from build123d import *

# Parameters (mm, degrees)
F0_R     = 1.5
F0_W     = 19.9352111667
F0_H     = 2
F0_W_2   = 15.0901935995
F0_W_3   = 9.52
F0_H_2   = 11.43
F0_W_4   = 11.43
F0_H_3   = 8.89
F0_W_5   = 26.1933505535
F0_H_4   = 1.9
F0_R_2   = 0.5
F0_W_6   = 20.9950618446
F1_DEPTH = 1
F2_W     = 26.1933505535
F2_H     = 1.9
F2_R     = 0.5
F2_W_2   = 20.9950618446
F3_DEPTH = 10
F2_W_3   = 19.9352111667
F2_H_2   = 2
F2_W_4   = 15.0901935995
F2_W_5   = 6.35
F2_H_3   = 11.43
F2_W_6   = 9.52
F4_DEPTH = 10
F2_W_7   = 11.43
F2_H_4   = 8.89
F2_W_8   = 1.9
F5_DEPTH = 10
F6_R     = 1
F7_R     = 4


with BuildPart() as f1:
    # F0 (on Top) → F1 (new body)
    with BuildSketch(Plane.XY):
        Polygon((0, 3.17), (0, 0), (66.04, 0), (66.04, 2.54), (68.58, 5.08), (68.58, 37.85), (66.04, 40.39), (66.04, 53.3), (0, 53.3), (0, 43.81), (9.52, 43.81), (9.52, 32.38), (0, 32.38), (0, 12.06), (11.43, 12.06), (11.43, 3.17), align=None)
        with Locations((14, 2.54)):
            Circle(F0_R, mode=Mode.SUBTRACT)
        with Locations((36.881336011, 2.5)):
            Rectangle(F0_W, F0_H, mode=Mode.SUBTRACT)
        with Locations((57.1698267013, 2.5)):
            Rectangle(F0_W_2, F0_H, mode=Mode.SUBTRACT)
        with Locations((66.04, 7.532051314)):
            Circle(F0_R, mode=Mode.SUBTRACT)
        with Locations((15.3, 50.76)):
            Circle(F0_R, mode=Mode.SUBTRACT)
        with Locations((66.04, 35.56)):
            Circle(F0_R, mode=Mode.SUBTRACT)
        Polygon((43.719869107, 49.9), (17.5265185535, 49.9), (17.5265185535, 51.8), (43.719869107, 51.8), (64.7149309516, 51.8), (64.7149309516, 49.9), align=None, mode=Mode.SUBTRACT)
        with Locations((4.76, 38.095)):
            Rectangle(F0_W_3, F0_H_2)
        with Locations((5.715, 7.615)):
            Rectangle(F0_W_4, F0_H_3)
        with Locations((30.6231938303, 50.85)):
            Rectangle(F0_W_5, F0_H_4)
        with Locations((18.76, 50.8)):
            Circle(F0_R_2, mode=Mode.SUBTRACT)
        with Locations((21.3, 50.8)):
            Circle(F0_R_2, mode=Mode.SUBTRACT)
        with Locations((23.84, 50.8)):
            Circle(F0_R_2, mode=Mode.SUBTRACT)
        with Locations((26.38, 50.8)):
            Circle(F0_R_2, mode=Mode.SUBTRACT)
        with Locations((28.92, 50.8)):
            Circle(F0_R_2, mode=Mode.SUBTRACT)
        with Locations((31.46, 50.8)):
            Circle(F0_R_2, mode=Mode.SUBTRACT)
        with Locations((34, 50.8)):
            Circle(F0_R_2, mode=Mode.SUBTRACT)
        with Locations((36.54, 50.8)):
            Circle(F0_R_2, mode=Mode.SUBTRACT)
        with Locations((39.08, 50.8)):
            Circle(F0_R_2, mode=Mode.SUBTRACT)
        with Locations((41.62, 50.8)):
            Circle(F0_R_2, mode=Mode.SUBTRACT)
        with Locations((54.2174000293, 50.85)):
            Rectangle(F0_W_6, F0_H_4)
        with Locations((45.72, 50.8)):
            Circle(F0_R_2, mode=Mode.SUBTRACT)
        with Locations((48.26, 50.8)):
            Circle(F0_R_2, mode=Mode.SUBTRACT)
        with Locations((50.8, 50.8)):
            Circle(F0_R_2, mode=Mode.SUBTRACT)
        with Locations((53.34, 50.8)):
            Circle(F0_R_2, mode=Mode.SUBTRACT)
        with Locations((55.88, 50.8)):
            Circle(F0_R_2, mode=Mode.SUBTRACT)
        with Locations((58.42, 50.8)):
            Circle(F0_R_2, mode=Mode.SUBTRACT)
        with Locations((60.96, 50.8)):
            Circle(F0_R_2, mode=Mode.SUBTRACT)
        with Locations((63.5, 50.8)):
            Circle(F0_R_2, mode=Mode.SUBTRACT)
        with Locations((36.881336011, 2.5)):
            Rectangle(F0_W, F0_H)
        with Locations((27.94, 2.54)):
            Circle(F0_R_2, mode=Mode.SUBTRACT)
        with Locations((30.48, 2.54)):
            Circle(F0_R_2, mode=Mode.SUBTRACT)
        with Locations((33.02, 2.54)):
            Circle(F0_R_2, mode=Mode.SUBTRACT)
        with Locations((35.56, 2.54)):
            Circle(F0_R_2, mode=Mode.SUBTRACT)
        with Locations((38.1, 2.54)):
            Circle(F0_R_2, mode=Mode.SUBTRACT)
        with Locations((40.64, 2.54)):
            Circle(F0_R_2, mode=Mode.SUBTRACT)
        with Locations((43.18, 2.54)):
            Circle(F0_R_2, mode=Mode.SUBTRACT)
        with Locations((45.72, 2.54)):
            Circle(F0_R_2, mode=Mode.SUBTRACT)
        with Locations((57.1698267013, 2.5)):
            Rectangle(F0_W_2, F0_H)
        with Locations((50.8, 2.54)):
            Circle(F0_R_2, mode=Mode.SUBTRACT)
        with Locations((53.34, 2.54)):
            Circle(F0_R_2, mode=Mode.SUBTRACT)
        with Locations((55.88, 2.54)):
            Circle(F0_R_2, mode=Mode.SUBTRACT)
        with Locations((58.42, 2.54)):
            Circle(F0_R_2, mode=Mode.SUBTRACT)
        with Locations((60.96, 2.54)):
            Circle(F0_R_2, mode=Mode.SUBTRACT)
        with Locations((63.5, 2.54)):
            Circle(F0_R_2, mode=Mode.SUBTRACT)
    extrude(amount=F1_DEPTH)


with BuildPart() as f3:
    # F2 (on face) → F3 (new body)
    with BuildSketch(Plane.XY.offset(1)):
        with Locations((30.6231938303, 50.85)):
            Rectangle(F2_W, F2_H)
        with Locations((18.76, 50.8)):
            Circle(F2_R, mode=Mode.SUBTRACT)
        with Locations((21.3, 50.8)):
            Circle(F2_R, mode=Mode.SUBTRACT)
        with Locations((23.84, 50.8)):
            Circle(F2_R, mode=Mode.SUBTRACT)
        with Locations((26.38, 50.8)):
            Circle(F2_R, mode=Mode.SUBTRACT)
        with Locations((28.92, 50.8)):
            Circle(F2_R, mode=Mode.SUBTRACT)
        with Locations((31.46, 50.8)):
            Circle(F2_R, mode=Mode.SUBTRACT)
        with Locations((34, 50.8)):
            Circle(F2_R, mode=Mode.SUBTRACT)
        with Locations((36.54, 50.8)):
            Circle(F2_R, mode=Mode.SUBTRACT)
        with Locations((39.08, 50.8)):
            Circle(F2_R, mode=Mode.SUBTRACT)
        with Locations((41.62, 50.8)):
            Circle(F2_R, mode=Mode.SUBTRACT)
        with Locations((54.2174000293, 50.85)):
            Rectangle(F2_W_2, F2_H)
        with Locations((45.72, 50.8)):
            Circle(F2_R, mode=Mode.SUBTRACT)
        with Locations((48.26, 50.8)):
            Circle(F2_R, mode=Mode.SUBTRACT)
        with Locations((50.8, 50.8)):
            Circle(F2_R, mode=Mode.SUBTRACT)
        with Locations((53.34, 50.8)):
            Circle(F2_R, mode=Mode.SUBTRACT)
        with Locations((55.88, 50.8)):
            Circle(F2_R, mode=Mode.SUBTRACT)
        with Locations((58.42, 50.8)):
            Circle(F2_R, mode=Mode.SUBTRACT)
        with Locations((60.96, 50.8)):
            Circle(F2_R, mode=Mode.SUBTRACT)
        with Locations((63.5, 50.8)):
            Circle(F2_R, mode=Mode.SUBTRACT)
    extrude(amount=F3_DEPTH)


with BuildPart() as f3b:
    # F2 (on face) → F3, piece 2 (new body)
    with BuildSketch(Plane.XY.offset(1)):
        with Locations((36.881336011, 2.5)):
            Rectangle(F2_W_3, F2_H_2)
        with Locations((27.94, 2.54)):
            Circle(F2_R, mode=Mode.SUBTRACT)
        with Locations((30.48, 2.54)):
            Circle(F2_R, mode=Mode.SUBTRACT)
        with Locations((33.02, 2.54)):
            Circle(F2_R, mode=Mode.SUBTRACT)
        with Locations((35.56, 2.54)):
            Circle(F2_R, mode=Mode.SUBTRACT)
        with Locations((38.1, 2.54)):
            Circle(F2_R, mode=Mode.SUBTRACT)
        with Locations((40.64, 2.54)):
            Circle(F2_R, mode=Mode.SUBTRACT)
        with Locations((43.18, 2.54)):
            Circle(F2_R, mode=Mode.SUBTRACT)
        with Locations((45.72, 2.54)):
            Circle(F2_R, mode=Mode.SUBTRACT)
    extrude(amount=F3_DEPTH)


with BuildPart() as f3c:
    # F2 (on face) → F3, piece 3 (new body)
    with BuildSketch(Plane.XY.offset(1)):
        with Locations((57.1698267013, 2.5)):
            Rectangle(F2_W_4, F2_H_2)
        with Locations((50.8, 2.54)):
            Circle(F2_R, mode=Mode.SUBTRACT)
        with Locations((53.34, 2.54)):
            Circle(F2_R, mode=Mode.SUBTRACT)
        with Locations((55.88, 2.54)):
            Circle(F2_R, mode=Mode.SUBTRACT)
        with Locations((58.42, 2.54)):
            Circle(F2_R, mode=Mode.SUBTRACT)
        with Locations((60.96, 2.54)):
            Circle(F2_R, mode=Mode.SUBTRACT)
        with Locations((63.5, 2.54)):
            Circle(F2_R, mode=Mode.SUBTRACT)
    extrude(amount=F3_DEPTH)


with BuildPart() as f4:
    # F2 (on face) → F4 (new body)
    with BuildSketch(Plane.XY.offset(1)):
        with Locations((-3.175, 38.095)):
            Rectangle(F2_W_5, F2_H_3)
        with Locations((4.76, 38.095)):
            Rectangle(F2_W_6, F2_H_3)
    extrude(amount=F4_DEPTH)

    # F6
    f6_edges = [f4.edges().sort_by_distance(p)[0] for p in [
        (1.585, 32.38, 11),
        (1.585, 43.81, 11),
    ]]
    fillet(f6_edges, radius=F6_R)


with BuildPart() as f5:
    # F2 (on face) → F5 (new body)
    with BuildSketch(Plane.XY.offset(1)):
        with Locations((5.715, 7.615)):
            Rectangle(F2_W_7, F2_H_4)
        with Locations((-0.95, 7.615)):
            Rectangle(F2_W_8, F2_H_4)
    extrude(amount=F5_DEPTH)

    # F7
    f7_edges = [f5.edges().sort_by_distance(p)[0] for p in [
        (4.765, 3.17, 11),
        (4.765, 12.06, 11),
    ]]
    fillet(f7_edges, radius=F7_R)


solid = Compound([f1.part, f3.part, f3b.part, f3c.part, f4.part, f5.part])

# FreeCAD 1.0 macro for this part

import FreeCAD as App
import Part
import Sketcher

V = App.Vector


def edges_at(feature, points):
    """Names of the edges that pass closest to the given points."""
    edges = feature.Shape.Edges
    near = lambda p: min(range(len(edges)), key=lambda i: edges[i].distToShape(Part.Vertex(*p))[0])
    return sorted({f"Edge{near(p) + 1}" for p in points})

doc = App.newDocument("Part")
body = doc.addObject("PartDesign::Body", "Body")

sketch1 = body.newObject("Sketcher::SketchObject", "Sketch")
sketch1.AttachmentSupport = (doc.getObject("XY_Plane"), [""])
sketch1.MapMode = "FlatFace"
sketch1.addGeometry([
    Part.LineSegment(V(0, 0, 0), V(66.04, 0, 0)),
    Part.LineSegment(V(66.04, 0, 0), V(66.04, 2.54, 0)),
    Part.LineSegment(V(66.04, 2.54, 0), V(68.58, 5.08, 0)),
    Part.LineSegment(V(68.58, 5.08, 0), V(68.58, 37.85, 0)),
    Part.LineSegment(V(68.58, 37.85, 0), V(66.04, 40.39, 0)),
    Part.LineSegment(V(66.04, 40.39, 0), V(66.04, 53.3, 0)),
    Part.LineSegment(V(66.04, 53.3, 0), V(0, 53.3, 0)),
    Part.LineSegment(V(0, 53.3, 0), V(0, 0, 0)),
    Part.Circle(V(14, 2.54, 0), V(0, 0, 1), 1.5),
    Part.Circle(V(27.94, 2.54, 0), V(0, 0, 1), 0.5),
    Part.Circle(V(30.48, 2.54, 0), V(0, 0, 1), 0.5),
    Part.Circle(V(33.02, 2.54, 0), V(0, 0, 1), 0.5),
    Part.Circle(V(35.56, 2.54, 0), V(0, 0, 1), 0.5),
    Part.Circle(V(38.1, 2.54, 0), V(0, 0, 1), 0.5),
    Part.Circle(V(40.64, 2.54, 0), V(0, 0, 1), 0.5),
    Part.Circle(V(43.18, 2.54, 0), V(0, 0, 1), 0.5),
    Part.Circle(V(45.72, 2.54, 0), V(0, 0, 1), 0.5),
    Part.Circle(V(50.8, 2.54, 0), V(0, 0, 1), 0.5),
    Part.Circle(V(53.34, 2.54, 0), V(0, 0, 1), 0.5),
    Part.Circle(V(55.88, 2.54, 0), V(0, 0, 1), 0.5),
    Part.Circle(V(58.42, 2.54, 0), V(0, 0, 1), 0.5),
    Part.Circle(V(60.96, 2.54, 0), V(0, 0, 1), 0.5),
    Part.Circle(V(63.5, 2.54, 0), V(0, 0, 1), 0.5),
    Part.Circle(V(66.04, 7.532051, 0), V(0, 0, 1), 1.5),
    Part.Circle(V(15.3, 50.76, 0), V(0, 0, 1), 1.5),
    Part.Circle(V(18.76, 50.8, 0), V(0, 0, 1), 0.5),
    Part.Circle(V(21.3, 50.8, 0), V(0, 0, 1), 0.5),
    Part.Circle(V(23.84, 50.8, 0), V(0, 0, 1), 0.5),
    Part.Circle(V(26.38, 50.8, 0), V(0, 0, 1), 0.5),
    Part.Circle(V(28.92, 50.8, 0), V(0, 0, 1), 0.5),
    Part.Circle(V(31.46, 50.8, 0), V(0, 0, 1), 0.5),
    Part.Circle(V(34, 50.8, 0), V(0, 0, 1), 0.5),
    Part.Circle(V(36.54, 50.8, 0), V(0, 0, 1), 0.5),
    Part.Circle(V(39.08, 50.8, 0), V(0, 0, 1), 0.5),
    Part.Circle(V(66.04, 35.56, 0), V(0, 0, 1), 1.5),
    Part.Circle(V(41.62, 50.8, 0), V(0, 0, 1), 0.5),
    Part.Circle(V(45.72, 50.8, 0), V(0, 0, 1), 0.5),
    Part.Circle(V(48.26, 50.8, 0), V(0, 0, 1), 0.5),
    Part.Circle(V(50.8, 50.8, 0), V(0, 0, 1), 0.5),
    Part.Circle(V(53.34, 50.8, 0), V(0, 0, 1), 0.5),
    Part.Circle(V(55.88, 50.8, 0), V(0, 0, 1), 0.5),
    Part.Circle(V(58.42, 50.8, 0), V(0, 0, 1), 0.5),
    Part.Circle(V(60.96, 50.8, 0), V(0, 0, 1), 0.5),
    Part.Circle(V(63.5, 50.8, 0), V(0, 0, 1), 0.5),
], False)
sketch1.addConstraint([
    Sketcher.Constraint("Coincident", 0, 2, 1, 1),
    Sketcher.Constraint("Coincident", 1, 2, 2, 1),
    Sketcher.Constraint("Coincident", 2, 2, 3, 1),
    Sketcher.Constraint("Coincident", 3, 2, 4, 1),
    Sketcher.Constraint("Coincident", 4, 2, 5, 1),
    Sketcher.Constraint("Coincident", 5, 2, 6, 1),
    Sketcher.Constraint("Coincident", 6, 2, 7, 1),
    Sketcher.Constraint("Coincident", 7, 2, 0, 1),
    Sketcher.Constraint("Horizontal", 0),
    Sketcher.Constraint("Vertical", 1),
    Sketcher.Constraint("Vertical", 3),
    Sketcher.Constraint("Vertical", 5),
    Sketcher.Constraint("Horizontal", 6),
    Sketcher.Constraint("Vertical", 7),
    Sketcher.Constraint("Coincident", 7, 2, -1, 1),
    Sketcher.Constraint("Equal", 9, 10),
    Sketcher.Constraint("Equal", 10, 11),
    Sketcher.Constraint("Equal", 11, 12),
    Sketcher.Constraint("Equal", 12, 13),
    Sketcher.Constraint("Equal", 13, 14),
    Sketcher.Constraint("Equal", 14, 15),
    Sketcher.Constraint("Equal", 15, 16),
    Sketcher.Constraint("Equal", 16, 17),
    Sketcher.Constraint("Equal", 17, 18),
    Sketcher.Constraint("Equal", 18, 19),
    Sketcher.Constraint("Equal", 19, 20),
    Sketcher.Constraint("Equal", 20, 21),
    Sketcher.Constraint("Equal", 21, 22),
    Sketcher.Constraint("Equal", 8, 23),
    Sketcher.Constraint("Equal", 23, 24),
    Sketcher.Constraint("Equal", 22, 25),
    Sketcher.Constraint("Equal", 25, 26),
    Sketcher.Constraint("Equal", 26, 27),
    Sketcher.Constraint("Equal", 27, 28),
    Sketcher.Constraint("Equal", 28, 29),
    Sketcher.Constraint("Equal", 29, 30),
    Sketcher.Constraint("Equal", 30, 31),
    Sketcher.Constraint("Equal", 31, 32),
    Sketcher.Constraint("Equal", 32, 33),
    Sketcher.Constraint("Equal", 24, 34),
    Sketcher.Constraint("Equal", 33, 35),
    Sketcher.Constraint("Equal", 35, 36),
    Sketcher.Constraint("Equal", 36, 37),
    Sketcher.Constraint("Equal", 37, 38),
    Sketcher.Constraint("Equal", 38, 39),
    Sketcher.Constraint("Equal", 39, 40),
    Sketcher.Constraint("Equal", 40, 41),
    Sketcher.Constraint("Equal", 41, 42),
    Sketcher.Constraint("Equal", 42, 43),
    Sketcher.Constraint("Perpendicular", 2, 4),
    Sketcher.Constraint("Horizontal", 8, 3, 9, 3),
    Sketcher.Constraint("Horizontal", 9, 3, 10, 3),
    Sketcher.Constraint("Horizontal", 10, 3, 11, 3),
    Sketcher.Constraint("Horizontal", 11, 3, 12, 3),
    Sketcher.Constraint("Horizontal", 12, 3, 13, 3),
    Sketcher.Constraint("Horizontal", 13, 3, 14, 3),
    Sketcher.Constraint("Horizontal", 14, 3, 15, 3),
    Sketcher.Constraint("Horizontal", 15, 3, 16, 3),
    Sketcher.Constraint("Horizontal", 16, 3, 17, 3),
    Sketcher.Constraint("Horizontal", 17, 3, 18, 3),
    Sketcher.Constraint("Horizontal", 18, 3, 19, 3),
    Sketcher.Constraint("Horizontal", 19, 3, 20, 3),
    Sketcher.Constraint("Horizontal", 20, 3, 21, 3),
    Sketcher.Constraint("Horizontal", 21, 3, 22, 3),
    Sketcher.Constraint("Horizontal", 25, 3, 26, 3),
    Sketcher.Constraint("Horizontal", 26, 3, 27, 3),
    Sketcher.Constraint("Horizontal", 27, 3, 28, 3),
    Sketcher.Constraint("Horizontal", 28, 3, 29, 3),
    Sketcher.Constraint("Horizontal", 29, 3, 30, 3),
    Sketcher.Constraint("Horizontal", 30, 3, 31, 3),
    Sketcher.Constraint("Horizontal", 31, 3, 32, 3),
    Sketcher.Constraint("Horizontal", 32, 3, 33, 3),
    Sketcher.Constraint("Horizontal", 33, 3, 35, 3),
    Sketcher.Constraint("Horizontal", 35, 3, 36, 3),
    Sketcher.Constraint("Horizontal", 36, 3, 37, 3),
    Sketcher.Constraint("Horizontal", 37, 3, 38, 3),
    Sketcher.Constraint("Horizontal", 38, 3, 39, 3),
    Sketcher.Constraint("Horizontal", 39, 3, 40, 3),
    Sketcher.Constraint("Horizontal", 40, 3, 41, 3),
    Sketcher.Constraint("Horizontal", 41, 3, 42, 3),
    Sketcher.Constraint("Horizontal", 42, 3, 43, 3),
    Sketcher.Constraint("Horizontal", 22, 3, 1, 2),
    Sketcher.Constraint("Vertical", 23, 3, 34, 3),
    Sketcher.Constraint("Vertical", 16, 3, 36, 3),
    Sketcher.Constraint("Vertical", 17, 3, 38, 3),
    Sketcher.Constraint("Vertical", 18, 3, 39, 3),
    Sketcher.Constraint("Vertical", 19, 3, 40, 3),
    Sketcher.Constraint("Vertical", 20, 3, 41, 3),
    Sketcher.Constraint("Vertical", 21, 3, 42, 3),
    Sketcher.Constraint("Vertical", 22, 3, 43, 3),
    Sketcher.Constraint("Vertical", 34, 3, 0, 2),
    Sketcher.Constraint("Vertical", 1, 2, 4, 2),
    Sketcher.Constraint("Equal", 2, 4),
    Sketcher.Constraint("Diameter", 8, 3.0),
    Sketcher.Constraint("Diameter", 9, 1.0),
    Sketcher.Constraint("DistanceY", 7, 2, 7, 1, 53.3),
    Sketcher.Constraint("DistanceX", -1, 1, 8, 3, 14.0),
    Sketcher.Constraint("DistanceX", -1, 1, 31, 3, 34.0),
    Sketcher.Constraint("DistanceX", 24, 3, 26, 3, 6.0),
    Sketcher.Constraint("DistanceX", 0, 1, 0, 2, 66.04),
    Sketcher.Constraint("DistanceY", 1, 1, 1, 2, 2.54),
    Sketcher.Constraint("DistanceY", 3, 1, 3, 2, 32.77),
    Sketcher.Constraint("DistanceY", 5, 1, 5, 2, 12.91),
    Sketcher.Constraint("DistanceX", -1, 1, 13, 3, 38.1),
    Sketcher.Constraint("DistanceX", -1, 1, 17, 3, 50.8),
    Sketcher.Constraint("DistanceX", -1, 1, 22, 3, 63.5),
    Sketcher.Constraint("DistanceX", -1, 1, 24, 3, 15.3),
    Sketcher.Constraint("DistanceY", -1, 1, 25, 3, 50.8),
    Sketcher.Constraint("DistanceX", 9, 3, 14, 3, 12.7),
    Sketcher.Constraint("DistanceX", 10, 3, 15, 3, 12.7),
    Sketcher.Constraint("DistanceX", 11, 3, 16, 3, 12.7),
    Sketcher.Constraint("DistanceX", 14, 3, 18, 3, 12.7),
    Sketcher.Constraint("DistanceX", 15, 3, 19, 3, 12.7),
    Sketcher.Constraint("DistanceX", 16, 3, 20, 3, 12.7),
    Sketcher.Constraint("DistanceX", 18, 3, 23, 3, 12.7),
    Sketcher.Constraint("DistanceX", 27, 3, 9, 3, 4.1),
    Sketcher.Constraint("DistanceX", 25, 3, 30, 3, 12.7),
    Sketcher.Constraint("DistanceX", 27, 3, 32, 3, 12.7),
    Sketcher.Constraint("DistanceX", 28, 3, 33, 3, 12.7),
    Sketcher.Constraint("DistanceX", 29, 3, 35, 3, 12.7),
    Sketcher.Constraint("DistanceX", 35, 3, 36, 3, 4.1),
    Sketcher.Constraint("DistanceX", 37, 3, 42, 3, 12.7),
    Sketcher.Constraint("DistanceX", 40, 3, 3, 2, 12.7),
    Sketcher.Constraint("DistanceX", -1, 1, 11, 3, 33.02),
    Sketcher.Constraint("DistanceX", -1, 1, 12, 3, 35.56),
    Sketcher.Constraint("DistanceX", -1, 1, 21, 3, 60.96),
    Sketcher.Constraint("DistanceY", -1, 1, 24, 3, 50.76),
    Sketcher.Constraint("DistanceX", -1, 1, 25, 3, 18.76),
    Sketcher.Constraint("DistanceX", -1, 1, 28, 3, 26.38),
    Sketcher.Constraint("DistanceY", -1, 1, 34, 3, 35.56),
    Sketcher.Constraint("DistanceY", -1, 1, 23, 3, 7.532051),
])
pad1 = body.newObject("PartDesign::Pad", "Pad")
pad1.Profile = sketch1
pad1.Length = 1
body2 = doc.addObject("PartDesign::Body", "Body001")

sketch2 = body2.newObject("Sketcher::SketchObject", "Sketch001")
sketch2.AttachmentSupport = (doc.getObject("XY_Plane001"), [""])
sketch2.MapMode = "FlatFace"
sketch2.AttachmentOffset = App.Placement(V(0, 0, 1), App.Rotation())
sketch2.addGeometry([
    Part.LineSegment(V(17.526519, 51.8, 0), V(17.526519, 49.9, 0)),
    Part.LineSegment(V(17.526519, 49.9, 0), V(64.714931, 49.9, 0)),
    Part.LineSegment(V(64.714931, 49.9, 0), V(64.714931, 51.8, 0)),
    Part.LineSegment(V(64.714931, 51.8, 0), V(17.526519, 51.8, 0)),
    Part.Circle(V(18.76, 50.8, 0), V(0, 0, 1), 0.5),
    Part.Circle(V(21.3, 50.8, 0), V(0, 0, 1), 0.5),
    Part.Circle(V(23.84, 50.8, 0), V(0, 0, 1), 0.5),
    Part.Circle(V(26.38, 50.8, 0), V(0, 0, 1), 0.5),
    Part.Circle(V(28.92, 50.8, 0), V(0, 0, 1), 0.5),
    Part.Circle(V(31.46, 50.8, 0), V(0, 0, 1), 0.5),
    Part.Circle(V(34, 50.8, 0), V(0, 0, 1), 0.5),
    Part.Circle(V(36.54, 50.8, 0), V(0, 0, 1), 0.5),
    Part.Circle(V(39.08, 50.8, 0), V(0, 0, 1), 0.5),
    Part.Circle(V(41.62, 50.8, 0), V(0, 0, 1), 0.5),
    Part.Circle(V(45.72, 50.8, 0), V(0, 0, 1), 0.5),
    Part.Circle(V(48.26, 50.8, 0), V(0, 0, 1), 0.5),
    Part.Circle(V(50.8, 50.8, 0), V(0, 0, 1), 0.5),
    Part.Circle(V(53.34, 50.8, 0), V(0, 0, 1), 0.5),
    Part.Circle(V(55.88, 50.8, 0), V(0, 0, 1), 0.5),
    Part.Circle(V(58.42, 50.8, 0), V(0, 0, 1), 0.5),
    Part.Circle(V(60.96, 50.8, 0), V(0, 0, 1), 0.5),
    Part.Circle(V(63.5, 50.8, 0), V(0, 0, 1), 0.5),
], False)
sketch2.addConstraint([
    Sketcher.Constraint("Coincident", 0, 2, 1, 1),
    Sketcher.Constraint("Coincident", 1, 2, 2, 1),
    Sketcher.Constraint("Coincident", 2, 2, 3, 1),
    Sketcher.Constraint("Coincident", 3, 2, 0, 1),
    Sketcher.Constraint("Vertical", 0),
    Sketcher.Constraint("Horizontal", 1),
    Sketcher.Constraint("Vertical", 2),
    Sketcher.Constraint("Horizontal", 3),
    Sketcher.Constraint("Equal", 4, 5),
    Sketcher.Constraint("Equal", 5, 6),
    Sketcher.Constraint("Equal", 6, 7),
    Sketcher.Constraint("Equal", 7, 8),
    Sketcher.Constraint("Equal", 8, 9),
    Sketcher.Constraint("Equal", 9, 10),
    Sketcher.Constraint("Equal", 10, 11),
    Sketcher.Constraint("Equal", 11, 12),
    Sketcher.Constraint("Equal", 12, 13),
    Sketcher.Constraint("Equal", 13, 14),
    Sketcher.Constraint("Equal", 14, 15),
    Sketcher.Constraint("Equal", 15, 16),
    Sketcher.Constraint("Equal", 16, 17),
    Sketcher.Constraint("Equal", 17, 18),
    Sketcher.Constraint("Equal", 18, 19),
    Sketcher.Constraint("Equal", 19, 20),
    Sketcher.Constraint("Equal", 20, 21),
    Sketcher.Constraint("Horizontal", 4, 3, 5, 3),
    Sketcher.Constraint("Horizontal", 5, 3, 6, 3),
    Sketcher.Constraint("Horizontal", 6, 3, 7, 3),
    Sketcher.Constraint("Horizontal", 7, 3, 8, 3),
    Sketcher.Constraint("Horizontal", 8, 3, 9, 3),
    Sketcher.Constraint("Horizontal", 9, 3, 10, 3),
    Sketcher.Constraint("Horizontal", 10, 3, 11, 3),
    Sketcher.Constraint("Horizontal", 11, 3, 12, 3),
    Sketcher.Constraint("Horizontal", 12, 3, 13, 3),
    Sketcher.Constraint("Horizontal", 13, 3, 14, 3),
    Sketcher.Constraint("Horizontal", 14, 3, 15, 3),
    Sketcher.Constraint("Horizontal", 15, 3, 16, 3),
    Sketcher.Constraint("Horizontal", 16, 3, 17, 3),
    Sketcher.Constraint("Horizontal", 17, 3, 18, 3),
    Sketcher.Constraint("Horizontal", 18, 3, 19, 3),
    Sketcher.Constraint("Horizontal", 19, 3, 20, 3),
    Sketcher.Constraint("Horizontal", 20, 3, 21, 3),
    Sketcher.Constraint("Diameter", 4, 1.0),
    Sketcher.Constraint("DistanceY", 0, 2, 0, 1, 1.9),
    Sketcher.Constraint("DistanceX", -1, 1, 10, 3, 34.0),
    Sketcher.Constraint("DistanceY", 21, 3, 2, 2, 1.0),
    Sketcher.Constraint("DistanceY", -1, 1, 4, 3, 50.8),
    Sketcher.Constraint("DistanceX", -1, 1, 5, 3, 21.3),
    Sketcher.Constraint("DistanceX", -1, 1, 16, 3, 50.8),
    Sketcher.Constraint("DistanceX", -1, 1, 21, 3, 63.5),
    Sketcher.Constraint("DistanceX", 4, 3, 9, 3, 12.7),
    Sketcher.Constraint("DistanceX", 6, 3, 11, 3, 12.7),
    Sketcher.Constraint("DistanceX", 7, 3, 12, 3, 12.7),
    Sketcher.Constraint("DistanceX", 8, 3, 13, 3, 12.7),
    Sketcher.Constraint("DistanceX", 13, 3, 14, 3, 4.1),
    Sketcher.Constraint("DistanceX", 14, 3, 19, 3, 12.7),
    Sketcher.Constraint("DistanceX", 15, 3, 20, 3, 12.7),
    Sketcher.Constraint("DistanceX", -1, 1, 4, 3, 18.76),
    Sketcher.Constraint("DistanceX", -1, 1, 6, 3, 23.84),
    Sketcher.Constraint("DistanceX", -1, 1, 7, 3, 26.38),
    Sketcher.Constraint("DistanceX", -1, 1, 8, 3, 28.92),
    Sketcher.Constraint("DistanceX", -1, 1, 15, 3, 48.26),
    Sketcher.Constraint("DistanceX", -1, 1, 17, 3, 53.34),
    Sketcher.Constraint("DistanceX", -1, 1, 18, 3, 55.88),
    Sketcher.Constraint("DistanceX", 1, 1, 1, 2, 47.188412),
    Sketcher.Constraint("DistanceX", -1, 1, 0, 2, 17.526519),
])
pad2 = body2.newObject("PartDesign::Pad", "Pad001")
pad2.Profile = sketch2
pad2.Length = 10
body3 = doc.addObject("PartDesign::Body", "Body002")

sketch3 = body3.newObject("Sketcher::SketchObject", "Sketch002")
sketch3.AttachmentSupport = (doc.getObject("XY_Plane002"), [""])
sketch3.MapMode = "FlatFace"
sketch3.AttachmentOffset = App.Placement(V(0, 0, 1), App.Rotation())
sketch3.addGeometry([
    Part.LineSegment(V(26.91373, 3.5, 0), V(26.91373, 1.5, 0)),
    Part.LineSegment(V(26.91373, 1.5, 0), V(46.848942, 1.5, 0)),
    Part.LineSegment(V(46.848942, 1.5, 0), V(46.848942, 3.5, 0)),
    Part.LineSegment(V(46.848942, 3.5, 0), V(26.91373, 3.5, 0)),
    Part.Circle(V(27.94, 2.54, 0), V(0, 0, 1), 0.5),
    Part.Circle(V(30.48, 2.54, 0), V(0, 0, 1), 0.5),
    Part.Circle(V(33.02, 2.54, 0), V(0, 0, 1), 0.5),
    Part.Circle(V(35.56, 2.54, 0), V(0, 0, 1), 0.5),
    Part.Circle(V(38.1, 2.54, 0), V(0, 0, 1), 0.5),
    Part.Circle(V(40.64, 2.54, 0), V(0, 0, 1), 0.5),
    Part.Circle(V(43.18, 2.54, 0), V(0, 0, 1), 0.5),
    Part.Circle(V(45.72, 2.54, 0), V(0, 0, 1), 0.5),
], False)
sketch3.addConstraint([
    Sketcher.Constraint("Coincident", 0, 2, 1, 1),
    Sketcher.Constraint("Coincident", 1, 2, 2, 1),
    Sketcher.Constraint("Coincident", 2, 2, 3, 1),
    Sketcher.Constraint("Coincident", 3, 2, 0, 1),
    Sketcher.Constraint("Vertical", 0),
    Sketcher.Constraint("Horizontal", 1),
    Sketcher.Constraint("Vertical", 2),
    Sketcher.Constraint("Horizontal", 3),
    Sketcher.Constraint("Equal", 4, 5),
    Sketcher.Constraint("Equal", 5, 6),
    Sketcher.Constraint("Equal", 6, 7),
    Sketcher.Constraint("Equal", 7, 8),
    Sketcher.Constraint("Equal", 8, 9),
    Sketcher.Constraint("Equal", 9, 10),
    Sketcher.Constraint("Equal", 10, 11),
    Sketcher.Constraint("Horizontal", 4, 3, 5, 3),
    Sketcher.Constraint("Horizontal", 5, 3, 6, 3),
    Sketcher.Constraint("Horizontal", 6, 3, 7, 3),
    Sketcher.Constraint("Horizontal", 7, 3, 8, 3),
    Sketcher.Constraint("Horizontal", 8, 3, 9, 3),
    Sketcher.Constraint("Horizontal", 9, 3, 10, 3),
    Sketcher.Constraint("Horizontal", 10, 3, 11, 3),
    Sketcher.Constraint("Diameter", 4, 1.0),
    Sketcher.Constraint("DistanceY", 0, 2, 0, 1, 2.0),
    Sketcher.Constraint("DistanceX", -1, 1, 8, 3, 38.1),
    Sketcher.Constraint("DistanceY", -1, 1, 0, 2, 1.5),
    Sketcher.Constraint("DistanceX", 4, 3, 9, 3, 12.7),
    Sketcher.Constraint("DistanceX", 5, 3, 10, 3, 12.7),
    Sketcher.Constraint("DistanceX", 6, 3, 11, 3, 12.7),
    Sketcher.Constraint("DistanceX", -1, 1, 4, 3, 27.94),
    Sketcher.Constraint("DistanceY", -1, 1, 4, 3, 2.54),
    Sketcher.Constraint("DistanceX", -1, 1, 5, 3, 30.48),
    Sketcher.Constraint("DistanceX", -1, 1, 6, 3, 33.02),
    Sketcher.Constraint("DistanceX", -1, 1, 7, 3, 35.56),
    Sketcher.Constraint("DistanceX", 1, 1, 1, 2, 19.935211),
    Sketcher.Constraint("DistanceX", -1, 1, 0, 2, 26.91373),
])
pad3 = body3.newObject("PartDesign::Pad", "Pad002")
pad3.Profile = sketch3
pad3.Length = 10
body4 = doc.addObject("PartDesign::Body", "Body003")

sketch4 = body4.newObject("Sketcher::SketchObject", "Sketch003")
sketch4.AttachmentSupport = (doc.getObject("XY_Plane003"), [""])
sketch4.MapMode = "FlatFace"
sketch4.AttachmentOffset = App.Placement(V(0, 0, 1), App.Rotation())
sketch4.addGeometry([
    Part.LineSegment(V(49.62473, 3.5, 0), V(49.62473, 1.5, 0)),
    Part.LineSegment(V(49.62473, 1.5, 0), V(64.714924, 1.5, 0)),
    Part.LineSegment(V(64.714924, 1.5, 0), V(64.714924, 3.5, 0)),
    Part.LineSegment(V(64.714924, 3.5, 0), V(49.62473, 3.5, 0)),
    Part.Circle(V(50.8, 2.54, 0), V(0, 0, 1), 0.5),
    Part.Circle(V(53.34, 2.54, 0), V(0, 0, 1), 0.5),
    Part.Circle(V(55.88, 2.54, 0), V(0, 0, 1), 0.5),
    Part.Circle(V(58.42, 2.54, 0), V(0, 0, 1), 0.5),
    Part.Circle(V(60.96, 2.54, 0), V(0, 0, 1), 0.5),
    Part.Circle(V(63.5, 2.54, 0), V(0, 0, 1), 0.5),
], False)
sketch4.addConstraint([
    Sketcher.Constraint("Coincident", 0, 2, 1, 1),
    Sketcher.Constraint("Coincident", 1, 2, 2, 1),
    Sketcher.Constraint("Coincident", 2, 2, 3, 1),
    Sketcher.Constraint("Coincident", 3, 2, 0, 1),
    Sketcher.Constraint("Vertical", 0),
    Sketcher.Constraint("Horizontal", 1),
    Sketcher.Constraint("Vertical", 2),
    Sketcher.Constraint("Horizontal", 3),
    Sketcher.Constraint("Equal", 4, 5),
    Sketcher.Constraint("Equal", 5, 6),
    Sketcher.Constraint("Equal", 6, 7),
    Sketcher.Constraint("Equal", 7, 8),
    Sketcher.Constraint("Equal", 8, 9),
    Sketcher.Constraint("Horizontal", 4, 3, 5, 3),
    Sketcher.Constraint("Horizontal", 5, 3, 6, 3),
    Sketcher.Constraint("Horizontal", 6, 3, 7, 3),
    Sketcher.Constraint("Horizontal", 7, 3, 8, 3),
    Sketcher.Constraint("Horizontal", 8, 3, 9, 3),
    Sketcher.Constraint("Diameter", 4, 1.0),
    Sketcher.Constraint("DistanceY", 0, 2, 0, 1, 2.0),
    Sketcher.Constraint("DistanceX", -1, 1, 4, 3, 50.8),
    Sketcher.Constraint("DistanceX", -1, 1, 9, 3, 63.5),
    Sketcher.Constraint("DistanceY", -1, 1, 0, 2, 1.5),
    Sketcher.Constraint("DistanceY", -1, 1, 4, 3, 2.54),
    Sketcher.Constraint("DistanceX", -1, 1, 5, 3, 53.34),
    Sketcher.Constraint("DistanceX", -1, 1, 6, 3, 55.88),
    Sketcher.Constraint("DistanceX", -1, 1, 7, 3, 58.42),
    Sketcher.Constraint("DistanceX", -1, 1, 8, 3, 60.96),
    Sketcher.Constraint("DistanceX", 1, 1, 1, 2, 15.090194),
    Sketcher.Constraint("DistanceX", -1, 1, 0, 2, 49.62473),
])
pad4 = body4.newObject("PartDesign::Pad", "Pad003")
pad4.Profile = sketch4
pad4.Length = 10
body5 = doc.addObject("PartDesign::Body", "Body004")

sketch5 = body5.newObject("Sketcher::SketchObject", "Sketch004")
sketch5.AttachmentSupport = (doc.getObject("XY_Plane004"), [""])
sketch5.MapMode = "FlatFace"
sketch5.AttachmentOffset = App.Placement(V(0, 0, 1), App.Rotation())
sketch5.addGeometry([
    Part.LineSegment(V(-6.35, 43.81, 0), V(-6.35, 32.38, 0)),
    Part.LineSegment(V(-6.35, 32.38, 0), V(9.52, 32.38, 0)),
    Part.LineSegment(V(9.52, 32.38, 0), V(9.52, 43.81, 0)),
    Part.LineSegment(V(9.52, 43.81, 0), V(-6.35, 43.81, 0)),
], False)
sketch5.addConstraint([
    Sketcher.Constraint("Coincident", 0, 2, 1, 1),
    Sketcher.Constraint("Coincident", 1, 2, 2, 1),
    Sketcher.Constraint("Coincident", 2, 2, 3, 1),
    Sketcher.Constraint("Coincident", 3, 2, 0, 1),
    Sketcher.Constraint("Vertical", 0),
    Sketcher.Constraint("Horizontal", 1),
    Sketcher.Constraint("Vertical", 2),
    Sketcher.Constraint("Horizontal", 3),
    Sketcher.Constraint("DistanceX", 1, 1, 1, 2, 15.87),
    Sketcher.Constraint("DistanceY", 0, 2, 0, 1, 11.43),
    Sketcher.Constraint("DistanceX", 0, 2, -1, 1, 6.35),
    Sketcher.Constraint("DistanceY", -1, 1, 0, 2, 32.38),
])
pad5 = body5.newObject("PartDesign::Pad", "Pad004")
pad5.Profile = sketch5
pad5.Length = 10
doc.recompute()

fillet = body5.newObject("PartDesign::Fillet", "Fillet")
fillet.Base = (pad5, edges_at(pad5, [(1.585, 32.38, 11), (1.585, 43.81, 11)]))
fillet.Radius = 1
body6 = doc.addObject("PartDesign::Body", "Body005")

sketch6 = body6.newObject("Sketcher::SketchObject", "Sketch005")
sketch6.AttachmentSupport = (doc.getObject("XY_Plane005"), [""])
sketch6.MapMode = "FlatFace"
sketch6.AttachmentOffset = App.Placement(V(0, 0, 1), App.Rotation())
sketch6.addGeometry([
    Part.LineSegment(V(11.43, 3.17, 0), V(11.43, 12.06, 0)),
    Part.LineSegment(V(11.43, 12.06, 0), V(-1.9, 12.06, 0)),
    Part.LineSegment(V(-1.9, 12.06, 0), V(-1.9, 3.17, 0)),
    Part.LineSegment(V(-1.9, 3.17, 0), V(11.43, 3.17, 0)),
], False)
sketch6.addConstraint([
    Sketcher.Constraint("Coincident", 0, 2, 1, 1),
    Sketcher.Constraint("Coincident", 1, 2, 2, 1),
    Sketcher.Constraint("Coincident", 2, 2, 3, 1),
    Sketcher.Constraint("Coincident", 3, 2, 0, 1),
    Sketcher.Constraint("Vertical", 0),
    Sketcher.Constraint("Horizontal", 1),
    Sketcher.Constraint("Vertical", 2),
    Sketcher.Constraint("Horizontal", 3),
    Sketcher.Constraint("DistanceX", 1, 2, 1, 1, 13.33),
    Sketcher.Constraint("DistanceY", 0, 1, 0, 2, 8.89),
    Sketcher.Constraint("DistanceX", 1, 2, -1, 1, 1.9),
    Sketcher.Constraint("DistanceY", -1, 1, 0, 2, 12.06),
])
pad6 = body6.newObject("PartDesign::Pad", "Pad005")
pad6.Profile = sketch6
pad6.Length = 10
doc.recompute()

fillet2 = body6.newObject("PartDesign::Fillet", "Fillet001")
fillet2.Base = (pad6, edges_at(pad6, [(4.765, 3.17, 11), (4.765, 12.06, 11)]))
fillet2.Radius = 4

doc.recompute()
